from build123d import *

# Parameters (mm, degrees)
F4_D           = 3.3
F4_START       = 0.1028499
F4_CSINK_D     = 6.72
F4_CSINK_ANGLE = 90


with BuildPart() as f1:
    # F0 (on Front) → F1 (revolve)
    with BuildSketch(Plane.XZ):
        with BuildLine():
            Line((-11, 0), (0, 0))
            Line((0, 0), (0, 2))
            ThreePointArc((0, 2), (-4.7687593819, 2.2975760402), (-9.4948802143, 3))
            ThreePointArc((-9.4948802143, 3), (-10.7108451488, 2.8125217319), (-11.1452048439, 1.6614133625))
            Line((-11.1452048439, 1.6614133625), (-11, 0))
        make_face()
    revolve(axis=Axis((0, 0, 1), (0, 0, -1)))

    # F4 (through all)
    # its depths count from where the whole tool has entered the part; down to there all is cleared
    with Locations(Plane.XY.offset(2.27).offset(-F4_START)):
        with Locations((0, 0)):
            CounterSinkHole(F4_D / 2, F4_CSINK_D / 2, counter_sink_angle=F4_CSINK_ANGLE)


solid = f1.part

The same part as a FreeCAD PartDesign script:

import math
import FreeCAD as App
import Part
import Sketcher

V = App.Vector
Q = App.Units.Quantity

doc = App.newDocument("Part")
body = doc.addObject("PartDesign::Body", "Body")

sketch1 = body.newObject("Sketcher::SketchObject", "Sketch")
sketch1.AttachmentSupport = (doc.getObject("XZ_Plane"), [""])
sketch1.MapMode = "FlatFace"
sketch1.addGeometry([
    Part.LineSegment(V(-11, 0, 0), V(0, 0, 0)),
    Part.LineSegment(V(0, 0, 0), V(0, 2, 0)),
    Part.ArcOfCircle(Part.Circle(V(1.1, 58.1, 0), V(0, 0, 1), 56.1), math.radians(-100.9), math.radians(-91.13)),
    Part.ArcOfCircle(Part.Circle(V(-9.9, 1.9, 0), V(0, 0, 1), 1.2), math.radians(68), math.radians(190)),
    Part.LineSegment(V(-11.1, 1.7, 0), V(-11, 0, 0)),
], False)
sketch1.addConstraint([
    Sketcher.Constraint("Coincident", 0, 2, 1, 1),
    Sketcher.Constraint("Coincident", 1, 2, 2, 2),
    Sketcher.Constraint("Coincident", 2, 1, 3, 1),
    Sketcher.Constraint("Coincident", 3, 2, 4, 1),
    Sketcher.Constraint("Coincident", 4, 2, 0, 1),
    Sketcher.Constraint("Horizontal", 0),
    Sketcher.Constraint("Vertical", 1),
    Sketcher.Constraint("Coincident", 0, 2, -1, 1),
    Sketcher.Constraint("DistanceX", 0, 1, 0, 2, Q("11 mm")),
    Sketcher.Constraint("DistanceY", 1, 1, 1, 2, Q("2 mm")),
    Sketcher.Constraint("DistanceY", -1, 1, 2, 1, Q("3 mm")),
    Sketcher.Constraint("Radius", 2, Q("56.080429 mm")),
    Sketcher.Constraint("Radius", 3, Q("1.219992 mm")),
    Sketcher.Constraint("DistanceX", -1, 1, 2, 3, Q("1.105139 mm")),
    Sketcher.Constraint("DistanceX", 3, 2, 3, 3, Q("1.202881 mm")),
    Sketcher.Constraint("Distance", 4, Q("1.667747 mm")),
])
revolution = body.newObject("PartDesign::Revolution", "Revolution")
revolution.Profile = sketch1
revolution.ReferenceAxis = (sketch1, ["V_Axis"])
revolution.Angle = 360

sketch2 = body.newObject("Sketcher::SketchObject", "Sketch001")
sketch2.AttachmentSupport = (doc.getObject("XY_Plane"), [""])
sketch2.MapMode = "FlatFace"
sketch2.AttachmentOffset = App.Placement(V(0, 0, 2.16715), App.Rotation())
sketch2.addGeometry(Part.Circle(V(0, 0, 0), V(0, 0, 1), 1.6), False)
sketch2.addConstraint([
    Sketcher.Constraint("Coincident", 0, 3, -1, 1),
    Sketcher.Constraint("Diameter", 0, Q("3.3 mm")),
])
doc.recompute()
hole = body.newObject("PartDesign::Hole", "Hole")
hole.Profile = sketch2
hole.ThreadType = "None"
hole.Diameter = 3.3
hole.DepthType = "ThroughAll"
hole.HoleCutType = "Countersink"
hole.HoleCutDiameter = 6.72
hole.HoleCutCountersinkAngle = 90

doc.recompute()
